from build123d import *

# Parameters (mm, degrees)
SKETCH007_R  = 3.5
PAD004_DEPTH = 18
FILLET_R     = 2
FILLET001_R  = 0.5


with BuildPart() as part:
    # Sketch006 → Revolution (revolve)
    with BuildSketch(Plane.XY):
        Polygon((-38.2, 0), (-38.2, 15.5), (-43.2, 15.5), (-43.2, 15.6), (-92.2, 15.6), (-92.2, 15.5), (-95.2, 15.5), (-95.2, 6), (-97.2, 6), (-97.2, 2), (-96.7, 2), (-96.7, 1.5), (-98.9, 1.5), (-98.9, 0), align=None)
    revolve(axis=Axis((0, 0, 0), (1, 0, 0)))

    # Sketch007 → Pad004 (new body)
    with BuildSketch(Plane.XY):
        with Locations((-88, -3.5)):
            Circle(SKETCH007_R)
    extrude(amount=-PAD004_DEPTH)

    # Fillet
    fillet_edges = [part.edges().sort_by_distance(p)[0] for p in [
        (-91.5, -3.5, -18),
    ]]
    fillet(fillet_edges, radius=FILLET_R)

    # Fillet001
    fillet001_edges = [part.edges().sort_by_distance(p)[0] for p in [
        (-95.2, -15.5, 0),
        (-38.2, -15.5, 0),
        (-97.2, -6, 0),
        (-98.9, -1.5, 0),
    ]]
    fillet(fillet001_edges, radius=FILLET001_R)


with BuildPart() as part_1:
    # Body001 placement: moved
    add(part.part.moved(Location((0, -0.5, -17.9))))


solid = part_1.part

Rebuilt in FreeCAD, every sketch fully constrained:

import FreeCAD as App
import Part
import Sketcher
Q = App.Units.Quantity


def edges_at(feature, points):
    """Names of the edges that pass closest to the given points."""
    edges = feature.Shape.Edges
    near = lambda p: min(range(len(edges)), key=lambda i: edges[i].distToShape(Part.Vertex(*p))[0])
    return sorted({f"Edge{near(p) + 1}" for p in points})

doc = App.newDocument("Part")
body = doc.addObject("PartDesign::Body", "Body")

# Sketch on XY plane
sketch1 = body.newObject("Sketcher::SketchObject", "Sketch")
sketch1.AttachmentSupport = (doc.getObject("XY_Plane"), [""])
sketch1.MapMode = "FlatFace"
sketch1.addGeometry([
    Part.LineSegment(App.Vector(-38.2, 0, 0), App.Vector(-38.2, 15.5, 0)),  # 0
    Part.LineSegment(App.Vector(-38.2, 15.5, 0), App.Vector(-43.2, 15.5, 0)),  # 1
    Part.LineSegment(App.Vector(-43.2, 15.5, 0), App.Vector(-43.2, 15.6, 0)),  # 2
    Part.LineSegment(App.Vector(-43.2, 15.6, 0), App.Vector(-92.2, 15.6, 0)),  # 3
    Part.LineSegment(App.Vector(-92.2, 15.6, 0), App.Vector(-92.2, 15.5, 0)),  # 4
    Part.LineSegment(App.Vector(-92.2, 15.5, 0), App.Vector(-95.2, 15.5, 0)),  # 5
    Part.LineSegment(App.Vector(-95.2, 15.5, 0), App.Vector(-95.2, 6, 0)),  # 6
    Part.LineSegment(App.Vector(-95.2, 6, 0), App.Vector(-97.2, 6, 0)),  # 7
    Part.LineSegment(App.Vector(-97.2, 6, 0), App.Vector(-97.2, 2, 0)),  # 8
    Part.LineSegment(App.Vector(-97.2, 2, 0), App.Vector(-96.7, 2, 0)),  # 9
    Part.LineSegment(App.Vector(-96.7, 2, 0), App.Vector(-96.7, 1.5, 0)),  # 10
    Part.LineSegment(App.Vector(-96.7, 1.5, 0), App.Vector(-98.9, 1.5, 0)),  # 11
    Part.LineSegment(App.Vector(-98.9, 1.5, 0), App.Vector(-98.9, 0, 0)),  # 12
    Part.LineSegment(App.Vector(-98.9, 0, 0), App.Vector(-38.2, 0, 0)),  # 13
], False)
sketch1.addConstraint([
    Sketcher.Constraint("Coincident", 0, 2, 1, 1),
    Sketcher.Constraint("Coincident", 1, 2, 2, 1),
    Sketcher.Constraint("Coincident", 2, 2, 3, 1),
    Sketcher.Constraint("Coincident", 3, 2, 4, 1),
    Sketcher.Constraint("Coincident", 4, 2, 5, 1),
    Sketcher.Constraint("Coincident", 5, 2, 6, 1),
    Sketcher.Constraint("Coincident", 6, 2, 7, 1),
    Sketcher.Constraint("Coincident", 7, 2, 8, 1),
    Sketcher.Constraint("Coincident", 8, 2, 9, 1),
    Sketcher.Constraint("Coincident", 9, 2, 10, 1),
    Sketcher.Constraint("Coincident", 10, 2, 11, 1),
    Sketcher.Constraint("Coincident", 11, 2, 12, 1),
    Sketcher.Constraint("Coincident", 12, 2, 13, 1),
    Sketcher.Constraint("Coincident", 13, 2, 0, 1),
    Sketcher.Constraint("Vertical", 0),
    Sketcher.Constraint("Horizontal", 1),
    Sketcher.Constraint("Vertical", 2),
    Sketcher.Constraint("Horizontal", 3),
    Sketcher.Constraint("Vertical", 4),
    Sketcher.Constraint("Horizontal", 5),
    Sketcher.Constraint("Vertical", 6),
    Sketcher.Constraint("Horizontal", 7),
    Sketcher.Constraint("Vertical", 8),
    Sketcher.Constraint("Horizontal", 9),
    Sketcher.Constraint("Vertical", 10),
    Sketcher.Constraint("Horizontal", 11),
    Sketcher.Constraint("Vertical", 12),
    Sketcher.Constraint("Horizontal", 13),
    Sketcher.Constraint("PointOnObject", 12, 2, -1),
    Sketcher.Constraint("Horizontal", 1, 2, 4, 2),
    Sketcher.Constraint("Equal", 9, 10),
    Sketcher.Constraint("DistanceX", 1, 2, 1, 1, Q("5 mm")),
    Sketcher.Constraint("DistanceX", 3, 2, 3, 1, Q("49 mm")),
    Sketcher.Constraint("DistanceX", 5, 2, 5, 1, Q("3 mm")),
    Sketcher.Constraint("DistanceX", 7, 2, 7, 1, Q("2 mm")),
    Sketcher.Constraint("DistanceY", 8, 2, 8, 1, Q("4 mm")),
    Sketcher.Constraint("DistanceX", 9, 1, 9, 2, Q("0.5 mm")),
    Sketcher.Constraint("DistanceX", 11, 2, 11, 1, Q("2.2 mm")),
    Sketcher.Constraint("DistanceY", 0, 1, 0, 2, Q("15.5 mm")),
    Sketcher.Constraint("DistanceY", 2, 1, 2, 2, Q("0.1 mm")),
    Sketcher.Constraint("DistanceY", 6, 2, 6, 1, Q("9.5 mm")),
    Sketcher.Constraint("DistanceX", 0, 2, -1, 1, Q("38.2 mm")),
])
revolution = body.newObject("PartDesign::Revolution", "Revolution")
revolution.Profile = sketch1
revolution.ReferenceAxis = (sketch1, ["H_Axis"])
revolution.Angle = 360

# Sketch on XY plane
sketch2 = body.newObject("Sketcher::SketchObject", "Sketch001")
sketch2.AttachmentSupport = (doc.getObject("XY_Plane"), [""])
sketch2.MapMode = "FlatFace"
sketch2.addGeometry(Part.Circle(App.Vector(-88, -3.5, 0), App.Vector(0, 0, 1), 3.5), False)
sketch2.addConstraint([
    Sketcher.Constraint("Diameter", 0, Q("7 mm")),
    Sketcher.Constraint("DistanceX", 0, 3, -1, 1, Q("88 mm")),
    Sketcher.Constraint("DistanceY", 0, 3, -1, 1, Q("3.5 mm")),
])
pad1 = body.newObject("PartDesign::Pad", "Pad")
pad1.Profile = sketch2
pad1.Length = 18
pad1.Reversed = True
doc.recompute()

fillet = body.newObject("PartDesign::Fillet", "Fillet")
fillet.Base = (pad1, edges_at(pad1, [(-91.5, -3.5, -18)]))
fillet.Radius = 2
doc.recompute()

fillet2 = body.newObject("PartDesign::Fillet", "Fillet001")
fillet2.Base = (fillet, edges_at(fillet, [
    (-95.2, -15.5, 0),
    (-38.2, -15.5, 0),
    (-97.2, -6, 0),
    (-98.9, -1.5, 0),
]))
fillet2.Radius = 0.5
body2 = doc.addObject("PartDesign::Body", "Body001")
doc.recompute()

body.Placement = App.Placement(App.Vector(0, -0.5, -17.9), App.Rotation(App.Vector(0, 0, 1), 0))
boolean = body2.newObject("PartDesign::Boolean", "Boolean")
boolean.Type = "Fuse"
boolean.addObjects([body])

doc.recompute()
